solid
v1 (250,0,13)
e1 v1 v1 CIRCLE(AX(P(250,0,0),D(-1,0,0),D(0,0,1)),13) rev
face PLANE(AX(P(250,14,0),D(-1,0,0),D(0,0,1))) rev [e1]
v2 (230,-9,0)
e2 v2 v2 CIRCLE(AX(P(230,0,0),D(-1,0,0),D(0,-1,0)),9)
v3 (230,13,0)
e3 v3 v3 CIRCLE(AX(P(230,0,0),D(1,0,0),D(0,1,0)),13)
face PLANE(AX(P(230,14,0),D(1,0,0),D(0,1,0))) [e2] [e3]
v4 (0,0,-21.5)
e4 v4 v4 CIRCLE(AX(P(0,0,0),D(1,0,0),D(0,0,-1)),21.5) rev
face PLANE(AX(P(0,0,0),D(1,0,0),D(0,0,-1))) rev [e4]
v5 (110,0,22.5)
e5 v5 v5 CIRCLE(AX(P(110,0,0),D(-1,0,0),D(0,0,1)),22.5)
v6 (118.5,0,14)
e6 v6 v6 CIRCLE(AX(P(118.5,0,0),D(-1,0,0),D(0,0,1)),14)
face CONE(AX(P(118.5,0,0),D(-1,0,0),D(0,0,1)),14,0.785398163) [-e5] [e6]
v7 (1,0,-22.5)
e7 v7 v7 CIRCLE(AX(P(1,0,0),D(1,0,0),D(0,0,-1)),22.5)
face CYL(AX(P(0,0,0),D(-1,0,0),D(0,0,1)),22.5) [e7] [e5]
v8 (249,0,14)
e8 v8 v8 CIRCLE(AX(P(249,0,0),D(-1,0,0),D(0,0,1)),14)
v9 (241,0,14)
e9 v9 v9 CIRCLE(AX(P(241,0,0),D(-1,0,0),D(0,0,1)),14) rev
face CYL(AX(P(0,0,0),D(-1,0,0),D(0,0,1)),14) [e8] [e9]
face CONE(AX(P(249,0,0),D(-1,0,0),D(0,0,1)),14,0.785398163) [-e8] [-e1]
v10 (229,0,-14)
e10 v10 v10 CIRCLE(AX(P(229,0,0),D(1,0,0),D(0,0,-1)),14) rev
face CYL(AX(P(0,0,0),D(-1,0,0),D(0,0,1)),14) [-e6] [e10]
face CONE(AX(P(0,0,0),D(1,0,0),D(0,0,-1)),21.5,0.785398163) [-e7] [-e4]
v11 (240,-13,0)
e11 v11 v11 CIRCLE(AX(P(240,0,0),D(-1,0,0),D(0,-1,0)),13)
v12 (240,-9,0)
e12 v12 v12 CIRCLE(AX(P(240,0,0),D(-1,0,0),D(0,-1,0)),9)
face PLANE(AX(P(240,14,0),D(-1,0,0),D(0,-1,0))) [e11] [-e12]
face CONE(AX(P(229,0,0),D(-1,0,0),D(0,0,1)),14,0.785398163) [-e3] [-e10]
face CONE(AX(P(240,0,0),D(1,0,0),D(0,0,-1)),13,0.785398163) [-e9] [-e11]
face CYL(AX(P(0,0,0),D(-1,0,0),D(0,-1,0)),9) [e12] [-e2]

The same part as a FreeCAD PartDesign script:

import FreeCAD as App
import Part
import Sketcher
from FreeCAD import Vector
Q = App.Units.Quantity


def edges_at(feature, points):
    """Names of the edges that pass closest to the given points."""
    edges = feature.Shape.Edges
    near = lambda p: min(range(len(edges)), key=lambda i: edges[i].distToShape(Part.Vertex(*p))[0])
    return sorted({f"Edge{near(p) + 1}" for p in points})


def add_polygon(sketch, points):
    """Adds a closed chain of lines whose ends are joined by coincident constraints."""
    first, n = sketch.GeometryCount, len(points)
    for a, b in zip(points, points[1:] + points[:1]):
        sketch.addGeometry(Part.LineSegment(App.Vector(*a, 0), App.Vector(*b, 0)), False)
    for i in range(n):
        sketch.addConstraint(Sketcher.Constraint("Coincident", first + i, 2, first + (i + 1) % n, 1))

doc = App.newDocument("Part")
params = doc.addObject("Spreadsheet::Sheet", "Params")
for row, (alias, value) in enumerate([
    ("sketch1_width", "250 mm"),
    ("sketch1_width2", "110 mm"),
    ("sketch1_height", "14 mm"),
    ("sketch1_width3", "131.5 mm"),
    ("revolution_angle", "360 deg"),
    ("sketch2_width", "10 mm"),
    ("sketch2_height", "5 mm"),
    ("groove_angle", "360 deg"),
    ("chamfer_size", "1 mm"),
], start=1):
    params.set(f"A{row}", alias)
    params.set(f"B{row}", "=" + value)
    params.setAlias(f"B{row}", alias)

body = doc.addObject("PartDesign::Body", "Body")

sketch1 = body.newObject("Sketcher::SketchObject", "Sketch")
sketch1.AttachmentSupport = (doc.getObject("XY_Plane"), [""])
sketch1.MapMode = "FlatFace"
add_polygon(sketch1, [(0, 22), (0, 0), (250, 0), (250, 14), (118, 14), (110, 22)])
sketch1.addConstraint(Sketcher.Constraint("Vertical", 0))
sketch1.addConstraint(Sketcher.Constraint("Horizontal", 1))
sketch1.addConstraint(Sketcher.Constraint("Vertical", 2))
sketch1.addConstraint(Sketcher.Constraint("Horizontal", 3))
sketch1.addConstraint(Sketcher.Constraint("Horizontal", 5))
sketch1.addConstraint(Sketcher.Constraint("Coincident", 0, 2, -1, 1))
sketch1.addConstraint(Sketcher.Constraint("DistanceX", 1, 1, 1, 2, 250.0))
sketch1.addConstraint(Sketcher.Constraint("DistanceX", 5, 2, 5, 1, 110.0))
sketch1.addConstraint(Sketcher.Constraint("DistanceY", 2, 1, 2, 2, 14.0))
sketch1.addConstraint(Sketcher.Constraint("Angle", 4, Q("135 deg")))
sketch1.addConstraint(Sketcher.Constraint("DistanceX", 3, 2, 3, 1, 131.5))
sketch1.setExpression("Constraints[12]", "Params.sketch1_width")
sketch1.setExpression("Constraints[13]", "Params.sketch1_width2")
sketch1.setExpression("Constraints[14]", "Params.sketch1_height")
sketch1.setExpression("Constraints[16]", "Params.sketch1_width3")
revolution = body.newObject("PartDesign::Revolution", "Revolution")
revolution.Profile = sketch1
revolution.ReferenceAxis = (sketch1, ["H_Axis"])
revolution.setExpression("Angle", "Params.revolution_angle")

sketch2 = body.newObject("Sketcher::SketchObject", "Sketch001")
sketch2.AttachmentSupport = (doc.getObject("XY_Plane"), [""])
sketch2.MapMode = "FlatFace"
add_polygon(sketch2, [(230, 14), (230, 9), (240, 9), (240, 14)])
sketch2.addConstraint(Sketcher.Constraint("Vertical", 0))
sketch2.addConstraint(Sketcher.Constraint("Horizontal", 1))
sketch2.addConstraint(Sketcher.Constraint("Vertical", 2))
sketch2.addConstraint(Sketcher.Constraint("Horizontal", 3))
sketch2.addConstraint(Sketcher.Constraint("DistanceX", 1, 1, 1, 2, 10.0))
sketch2.addConstraint(Sketcher.Constraint("DistanceY", 0, 2, 0, 1, 5.0))
sketch2.addConstraint(Sketcher.Constraint("DistanceX", -1, 1, 0, 2, 230.0))
sketch2.addConstraint(Sketcher.Constraint("DistanceY", -1, 1, 0, 2, 9.0))
sketch2.setExpression("Constraints[8]", "Params.sketch2_width")
sketch2.setExpression("Constraints[9]", "Params.sketch2_height")
groove = body.newObject("PartDesign::Groove", "Groove")
groove.Profile = sketch2
groove.ReferenceAxis = (sketch2, ["H_Axis"])
groove.setExpression("Angle", "Params.groove_angle")
doc.recompute()

chamfer = body.newObject("PartDesign::Chamfer", "Chamfer")
chamfer.Base = (groove, edges_at(groove, [
    (230, -14, 0),
    (240, -14, 0),
    (250, -14, 0),
    (0, -22.5, 0),
]))
chamfer.setExpression("Size", "Params.chamfer_size")

doc.recompute()
